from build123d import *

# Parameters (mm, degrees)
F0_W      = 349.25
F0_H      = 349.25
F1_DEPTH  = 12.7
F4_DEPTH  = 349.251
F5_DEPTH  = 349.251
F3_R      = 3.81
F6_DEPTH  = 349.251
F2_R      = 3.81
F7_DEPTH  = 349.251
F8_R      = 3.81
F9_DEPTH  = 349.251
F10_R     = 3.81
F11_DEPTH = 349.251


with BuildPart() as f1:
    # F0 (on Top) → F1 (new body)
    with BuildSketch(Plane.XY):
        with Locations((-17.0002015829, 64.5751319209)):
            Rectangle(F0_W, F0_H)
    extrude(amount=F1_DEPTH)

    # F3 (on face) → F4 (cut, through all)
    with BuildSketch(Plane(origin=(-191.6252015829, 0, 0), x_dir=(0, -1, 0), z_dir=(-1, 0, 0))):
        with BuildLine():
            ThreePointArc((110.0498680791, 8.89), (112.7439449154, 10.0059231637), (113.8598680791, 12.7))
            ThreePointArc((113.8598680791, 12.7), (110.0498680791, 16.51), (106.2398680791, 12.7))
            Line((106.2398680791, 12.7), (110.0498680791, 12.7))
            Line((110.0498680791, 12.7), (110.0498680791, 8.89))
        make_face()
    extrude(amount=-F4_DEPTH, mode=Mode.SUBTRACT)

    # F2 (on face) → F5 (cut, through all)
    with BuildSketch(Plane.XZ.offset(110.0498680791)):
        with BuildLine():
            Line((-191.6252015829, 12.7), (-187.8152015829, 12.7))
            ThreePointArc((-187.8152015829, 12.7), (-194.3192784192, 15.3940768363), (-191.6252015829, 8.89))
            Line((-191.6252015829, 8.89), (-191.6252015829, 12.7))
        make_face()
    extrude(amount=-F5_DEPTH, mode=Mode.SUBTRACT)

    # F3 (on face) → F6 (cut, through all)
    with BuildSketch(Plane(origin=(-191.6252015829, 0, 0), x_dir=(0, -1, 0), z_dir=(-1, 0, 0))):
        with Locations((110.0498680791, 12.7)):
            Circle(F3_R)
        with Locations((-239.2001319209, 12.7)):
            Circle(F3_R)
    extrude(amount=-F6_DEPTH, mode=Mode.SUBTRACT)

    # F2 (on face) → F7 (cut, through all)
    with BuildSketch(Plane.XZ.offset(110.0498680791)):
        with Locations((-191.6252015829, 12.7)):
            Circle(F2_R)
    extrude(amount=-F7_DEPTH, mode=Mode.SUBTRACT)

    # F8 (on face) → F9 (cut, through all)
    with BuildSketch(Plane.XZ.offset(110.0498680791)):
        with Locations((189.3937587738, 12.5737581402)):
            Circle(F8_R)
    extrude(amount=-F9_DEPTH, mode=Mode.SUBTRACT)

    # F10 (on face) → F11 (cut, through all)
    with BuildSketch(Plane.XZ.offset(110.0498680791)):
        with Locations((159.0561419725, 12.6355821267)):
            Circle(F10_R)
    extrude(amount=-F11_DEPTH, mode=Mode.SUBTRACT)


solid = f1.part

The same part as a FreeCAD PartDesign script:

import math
import FreeCAD as App
import Part
import Sketcher

V = App.Vector
Q = App.Units.Quantity


def add_polygon(sketch, points):
    """Adds a closed chain of lines whose ends are joined by coincident constraints."""
    first, n = sketch.GeometryCount, len(points)
    for a, b in zip(points, points[1:] + points[:1]):
        sketch.addGeometry(Part.LineSegment(App.Vector(*a, 0), App.Vector(*b, 0)), False)
    for i in range(n):
        sketch.addConstraint(Sketcher.Constraint("Coincident", first + i, 2, first + (i + 1) % n, 1))

doc = App.newDocument("Part")
body = doc.addObject("PartDesign::Body", "Body")

# Sketch on XY plane
sketch1 = doc.addObject("Sketcher::SketchObject", "Sketch")
body.addObject(sketch1)
sketch1.AttachmentSupport = (doc.XY_Plane, [""])
sketch1.MapMode = "FlatFace"
add_polygon(sketch1, [(-192, 239), (-192, -110), (158, -110), (158, 239)])  # lines 0-3
sketch1.addConstraint([
    Sketcher.Constraint("Vertical", 0),
    Sketcher.Constraint("Horizontal", 1),
    Sketcher.Constraint("Vertical", 2),
    Sketcher.Constraint("Horizontal", 3),
    Sketcher.Constraint("Equal", 3, 0),
    Sketcher.Constraint("DistanceX", 1, 1, 1, 2, Q("13.75 in")),
    Sketcher.Constraint("DistanceX", 0, 2, -1, 1, Q("191.625202 mm")),
    Sketcher.Constraint("DistanceY", 0, 2, -1, 1, Q("110.049868 mm")),
])
pad1 = doc.addObject("PartDesign::Pad", "Pad")
body.addObject(pad1)
pad1.Profile = sketch1
pad1.Length = Q("0.5 in")

# Sketch on YZ plane
sketch2 = doc.addObject("Sketcher::SketchObject", "Sketch001")
body.addObject(sketch2)
sketch2.AttachmentSupport = (doc.YZ_Plane, [""])
sketch2.MapMode = "FlatFace"
sketch2.AttachmentOffset = App.Placement(V(0, 0, -191.625202), App.Rotation())
sketch2.addGeometry([
    Part.ArcOfCircle(Part.Circle(V(-110, 12.7, 0), V(0, 0, 1), 3.8), math.radians(180), math.radians(270)),
    Part.ArcOfCircle(Part.Circle(V(-110, 12.7, 0), V(0, 0, 1), 3.8), math.radians(0), math.radians(180)),
    Part.LineSegment(V(-106.2, 12.7, 0), V(-110, 12.7, 0)),
    Part.LineSegment(V(-110, 12.7, 0), V(-110, 8.9, 0)),
], False)
sketch2.addConstraint([
    Sketcher.Constraint("Tangent", 0, 1, 1, 2),
    Sketcher.Constraint("Coincident", 1, 1, 2, 1),
    Sketcher.Constraint("Coincident", 2, 2, 3, 1),
    Sketcher.Constraint("Coincident", 3, 2, 0, 2),
    Sketcher.Constraint("Horizontal", 2),
    Sketcher.Constraint("Vertical", 3),
    Sketcher.Constraint("Coincident", 2, 2, 0, 3),
    Sketcher.Constraint("Equal", 0, 1),
    Sketcher.Constraint("Horizontal", 1, 3, 0, 1),
    Sketcher.Constraint("Radius", 0, Q("0.15 in")),
    Sketcher.Constraint("DistanceY", -1, 1, 0, 3, Q("0.5 in")),
    Sketcher.Constraint("DistanceX", 0, 3, -1, 1, Q("110.049868 mm")),
])
pocket1 = doc.addObject("PartDesign::Pocket", "Pocket")
body.addObject(pocket1)
pocket1.Profile = sketch2
pocket1.Type = "ThroughAll"
pocket1.Reversed = True

# Sketch on XZ plane
sketch3 = doc.addObject("Sketcher::SketchObject", "Sketch002")
body.addObject(sketch3)
sketch3.AttachmentSupport = (doc.XZ_Plane, [""])
sketch3.MapMode = "FlatFace"
sketch3.AttachmentOffset = App.Placement(V(0, 0, 110.049868), App.Rotation())
sketch3.addGeometry([
    Part.LineSegment(V(-191.6, 12.7, 0), V(-187.8, 12.7, 0)),
    Part.ArcOfCircle(Part.Circle(V(-191.6, 12.7, 0), V(0, 0, 1), 3.8), math.radians(0), math.radians(270)),
    Part.LineSegment(V(-191.6, 8.9, 0), V(-191.6, 12.7, 0)),
], False)
sketch3.addConstraint([
    Sketcher.Constraint("Coincident", 0, 2, 1, 1),
    Sketcher.Constraint("Coincident", 1, 2, 2, 1),
    Sketcher.Constraint("Coincident", 2, 2, 0, 1),
    Sketcher.Constraint("Horizontal", 0),
    Sketcher.Constraint("Vertical", 2),
    Sketcher.Constraint("Coincident", 2, 2, 1, 3),
    Sketcher.Constraint("Radius", 1, Q("0.15 in")),
    Sketcher.Constraint("DistanceY", -1, 1, 1, 3, Q("0.5 in")),
    Sketcher.Constraint("DistanceX", 1, 3, -1, 1, Q("191.625202 mm")),
])
pocket2 = doc.addObject("PartDesign::Pocket", "Pocket001")
body.addObject(pocket2)
pocket2.Profile = sketch3
pocket2.Type = "ThroughAll"

# Sketch on YZ plane
sketch4 = doc.addObject("Sketcher::SketchObject", "Sketch003")
body.addObject(sketch4)
sketch4.AttachmentSupport = (doc.YZ_Plane, [""])
sketch4.MapMode = "FlatFace"
sketch4.AttachmentOffset = App.Placement(V(0, 0, -191.625202), App.Rotation())
sketch4.addGeometry([
    Part.Circle(V(-110, 12.7, 0), V(0, 0, 1), 3.8),
    Part.Circle(V(239.2, 12.7, 0), V(0, 0, 1), 3.8),
], False)
sketch4.addConstraint([
    Sketcher.Constraint("Equal", 0, 1),
    Sketcher.Constraint("Horizontal", 0, 3, 1, 3),
    Sketcher.Constraint("Diameter", 0, Q("0.3 in")),
    Sketcher.Constraint("DistanceY", -1, 1, 0, 3, Q("0.5 in")),
    Sketcher.Constraint("DistanceX", 0, 3, 1, 3, Q("13.75 in")),
    Sketcher.Constraint("DistanceX", 0, 3, -1, 1, Q("110.049868 mm")),
])
pocket3 = doc.addObject("PartDesign::Pocket", "Pocket002")
body.addObject(pocket3)
pocket3.Profile = sketch4
pocket3.Type = "ThroughAll"
pocket3.Reversed = True

# Sketch on XZ plane
sketch5 = doc.addObject("Sketcher::SketchObject", "Sketch004")
body.addObject(sketch5)
sketch5.AttachmentSupport = (doc.XZ_Plane, [""])
sketch5.MapMode = "FlatFace"
sketch5.AttachmentOffset = App.Placement(V(0, 0, 110.049868), App.Rotation())
sketch5.addGeometry(Part.Circle(V(-191.6, 12.7, 0), V(0, 0, 1), 3.8), False)
sketch5.addConstraint([
    Sketcher.Constraint("Diameter", 0, Q("0.3 in")),
    Sketcher.Constraint("DistanceY", -1, 1, 0, 3, Q("0.5 in")),
    Sketcher.Constraint("DistanceX", 0, 3, -1, 1, Q("191.625202 mm")),
])
pocket4 = doc.addObject("PartDesign::Pocket", "Pocket003")
body.addObject(pocket4)
pocket4.Profile = sketch5
pocket4.Type = "ThroughAll"

# Sketch on XZ plane
sketch6 = doc.addObject("Sketcher::SketchObject", "Sketch005")
body.addObject(sketch6)
sketch6.AttachmentSupport = (doc.XZ_Plane, [""])
sketch6.MapMode = "FlatFace"
sketch6.AttachmentOffset = App.Placement(V(0, 0, 110.049868), App.Rotation())
sketch6.addGeometry(Part.Circle(V(189.4, 12.6, 0), V(0, 0, 1), 3.8), False)
sketch6.addConstraint([
    Sketcher.Constraint("Diameter", 0, Q("0.3 in")),
    Sketcher.Constraint("DistanceX", -1, 1, 0, 3, Q("189.393759 mm")),
    Sketcher.Constraint("DistanceY", -1, 1, 0, 3, Q("12.573758 mm")),
])
pocket5 = doc.addObject("PartDesign::Pocket", "Pocket004")
body.addObject(pocket5)
pocket5.Profile = sketch6
pocket5.Type = "ThroughAll"

# Sketch on XZ plane
sketch7 = doc.addObject("Sketcher::SketchObject", "Sketch006")
body.addObject(sketch7)
sketch7.AttachmentSupport = (doc.XZ_Plane, [""])
sketch7.MapMode = "FlatFace"
sketch7.AttachmentOffset = App.Placement(V(0, 0, 110.049868), App.Rotation())
sketch7.addGeometry(Part.Circle(V(159.1, 12.6, 0), V(0, 0, 1), 3.8), False)
sketch7.addConstraint([
    Sketcher.Constraint("Diameter", 0, Q("0.3 in")),
    Sketcher.Constraint("DistanceX", -1, 1, 0, 3, Q("159.056142 mm")),
    Sketcher.Constraint("DistanceY", -1, 1, 0, 3, Q("12.635582 mm")),
])
pocket6 = doc.addObject("PartDesign::Pocket", "Pocket005")
body.addObject(pocket6)
pocket6.Profile = sketch7
pocket6.Type = "ThroughAll"

doc.recompute()
